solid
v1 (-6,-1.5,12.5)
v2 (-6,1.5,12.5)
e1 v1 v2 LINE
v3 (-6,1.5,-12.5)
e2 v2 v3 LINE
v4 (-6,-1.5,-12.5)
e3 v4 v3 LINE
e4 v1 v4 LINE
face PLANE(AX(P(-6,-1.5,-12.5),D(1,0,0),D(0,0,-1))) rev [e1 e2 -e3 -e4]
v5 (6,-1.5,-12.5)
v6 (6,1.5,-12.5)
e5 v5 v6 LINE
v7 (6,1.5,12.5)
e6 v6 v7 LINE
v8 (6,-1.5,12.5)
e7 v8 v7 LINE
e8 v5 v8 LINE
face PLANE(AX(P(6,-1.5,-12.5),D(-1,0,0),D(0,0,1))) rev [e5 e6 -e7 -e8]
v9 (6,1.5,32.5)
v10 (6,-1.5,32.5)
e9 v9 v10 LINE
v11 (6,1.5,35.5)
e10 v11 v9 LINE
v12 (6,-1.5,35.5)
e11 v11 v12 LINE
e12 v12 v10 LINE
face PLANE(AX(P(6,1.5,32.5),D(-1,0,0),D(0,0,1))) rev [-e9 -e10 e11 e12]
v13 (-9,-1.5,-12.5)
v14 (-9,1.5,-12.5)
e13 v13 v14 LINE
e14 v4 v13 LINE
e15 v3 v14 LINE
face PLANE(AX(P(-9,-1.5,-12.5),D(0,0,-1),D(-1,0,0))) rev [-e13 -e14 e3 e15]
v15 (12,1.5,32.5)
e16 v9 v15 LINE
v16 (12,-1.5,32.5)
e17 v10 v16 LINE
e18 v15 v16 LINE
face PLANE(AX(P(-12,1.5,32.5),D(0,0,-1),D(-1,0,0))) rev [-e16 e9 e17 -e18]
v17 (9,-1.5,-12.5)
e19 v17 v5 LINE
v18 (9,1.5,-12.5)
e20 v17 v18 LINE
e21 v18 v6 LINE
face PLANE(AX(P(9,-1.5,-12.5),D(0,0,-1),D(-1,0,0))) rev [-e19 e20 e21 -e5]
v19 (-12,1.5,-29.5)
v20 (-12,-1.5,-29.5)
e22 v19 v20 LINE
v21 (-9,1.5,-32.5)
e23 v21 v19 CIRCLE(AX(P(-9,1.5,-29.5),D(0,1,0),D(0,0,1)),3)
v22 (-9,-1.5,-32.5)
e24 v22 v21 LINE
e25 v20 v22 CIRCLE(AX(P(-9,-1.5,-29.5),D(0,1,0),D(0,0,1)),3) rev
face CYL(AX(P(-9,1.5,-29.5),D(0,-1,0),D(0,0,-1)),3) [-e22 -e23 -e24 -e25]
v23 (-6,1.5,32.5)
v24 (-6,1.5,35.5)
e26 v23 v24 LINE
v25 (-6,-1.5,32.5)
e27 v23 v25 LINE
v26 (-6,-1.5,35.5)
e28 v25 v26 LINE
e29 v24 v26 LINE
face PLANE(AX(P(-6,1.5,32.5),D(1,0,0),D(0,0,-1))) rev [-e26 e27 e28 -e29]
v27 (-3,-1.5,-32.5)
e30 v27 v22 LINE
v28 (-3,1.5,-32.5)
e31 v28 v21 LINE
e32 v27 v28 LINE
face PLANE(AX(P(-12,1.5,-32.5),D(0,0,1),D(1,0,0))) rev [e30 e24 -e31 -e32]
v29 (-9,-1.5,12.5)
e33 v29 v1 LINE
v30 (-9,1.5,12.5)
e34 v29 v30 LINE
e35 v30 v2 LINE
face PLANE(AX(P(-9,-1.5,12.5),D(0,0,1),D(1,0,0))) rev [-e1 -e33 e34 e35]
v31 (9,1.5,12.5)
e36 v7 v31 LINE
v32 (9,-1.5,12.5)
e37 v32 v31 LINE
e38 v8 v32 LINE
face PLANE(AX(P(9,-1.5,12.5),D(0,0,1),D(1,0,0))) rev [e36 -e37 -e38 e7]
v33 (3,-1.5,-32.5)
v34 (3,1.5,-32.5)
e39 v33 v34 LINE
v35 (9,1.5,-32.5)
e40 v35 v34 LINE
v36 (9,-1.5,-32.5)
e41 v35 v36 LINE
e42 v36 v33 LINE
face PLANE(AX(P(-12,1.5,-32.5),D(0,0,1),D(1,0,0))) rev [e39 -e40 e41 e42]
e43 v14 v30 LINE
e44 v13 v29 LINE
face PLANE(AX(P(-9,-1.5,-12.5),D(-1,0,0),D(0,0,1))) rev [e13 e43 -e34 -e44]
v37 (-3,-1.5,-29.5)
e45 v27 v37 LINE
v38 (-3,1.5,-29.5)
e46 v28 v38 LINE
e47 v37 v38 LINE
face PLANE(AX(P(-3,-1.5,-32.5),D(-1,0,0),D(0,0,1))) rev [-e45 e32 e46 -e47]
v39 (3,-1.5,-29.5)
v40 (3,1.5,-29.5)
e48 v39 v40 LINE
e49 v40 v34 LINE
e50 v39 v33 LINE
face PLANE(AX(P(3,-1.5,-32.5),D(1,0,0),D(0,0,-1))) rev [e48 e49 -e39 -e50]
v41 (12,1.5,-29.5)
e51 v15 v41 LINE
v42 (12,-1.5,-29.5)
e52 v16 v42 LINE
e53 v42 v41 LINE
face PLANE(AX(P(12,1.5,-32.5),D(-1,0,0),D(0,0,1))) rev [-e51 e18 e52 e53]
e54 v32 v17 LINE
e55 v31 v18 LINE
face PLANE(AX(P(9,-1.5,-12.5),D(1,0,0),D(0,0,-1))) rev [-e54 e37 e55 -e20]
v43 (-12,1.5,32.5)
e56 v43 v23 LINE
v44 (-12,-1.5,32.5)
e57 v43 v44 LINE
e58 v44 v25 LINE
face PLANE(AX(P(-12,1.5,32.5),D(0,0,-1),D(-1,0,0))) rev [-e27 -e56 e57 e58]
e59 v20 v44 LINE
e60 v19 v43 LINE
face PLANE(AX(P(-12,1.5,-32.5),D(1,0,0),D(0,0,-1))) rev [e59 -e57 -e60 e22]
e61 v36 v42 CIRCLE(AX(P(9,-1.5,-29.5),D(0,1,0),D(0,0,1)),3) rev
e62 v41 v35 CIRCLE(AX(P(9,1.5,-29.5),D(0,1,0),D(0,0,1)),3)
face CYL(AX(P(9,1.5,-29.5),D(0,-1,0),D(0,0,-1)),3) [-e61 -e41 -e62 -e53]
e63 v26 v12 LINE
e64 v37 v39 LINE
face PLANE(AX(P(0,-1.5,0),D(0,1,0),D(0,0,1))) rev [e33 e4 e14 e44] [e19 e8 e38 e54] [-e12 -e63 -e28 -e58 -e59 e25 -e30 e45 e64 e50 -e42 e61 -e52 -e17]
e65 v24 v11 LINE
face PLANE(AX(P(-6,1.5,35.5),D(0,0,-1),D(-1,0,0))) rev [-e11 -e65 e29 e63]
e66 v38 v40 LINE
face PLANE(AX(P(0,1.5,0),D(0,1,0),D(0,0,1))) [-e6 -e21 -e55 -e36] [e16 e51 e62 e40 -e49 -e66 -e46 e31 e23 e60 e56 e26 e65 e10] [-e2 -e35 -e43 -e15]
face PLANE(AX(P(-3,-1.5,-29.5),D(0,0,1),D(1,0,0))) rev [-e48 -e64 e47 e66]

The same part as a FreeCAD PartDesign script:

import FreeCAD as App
import Part
import Sketcher

V = App.Vector


def edges_at(feature, points):
    """Names of the edges that pass closest to the given points."""
    edges = feature.Shape.Edges
    near = lambda p: min(range(len(edges)), key=lambda i: edges[i].distToShape(Part.Vertex(*p))[0])
    return sorted({f"Edge{near(p) + 1}" for p in points})

doc = App.newDocument("Part")
body = doc.addObject("PartDesign::Body", "Body")

# Sketch on XZ plane
sketch1 = body.newObject("Sketcher::SketchObject", "Sketch")
sketch1.AttachmentSupport = (doc.getObject("XZ_Plane"), [""])
sketch1.MapMode = "FlatFace"
sketch1.addGeometry([
    Part.LineSegment(V(-12, -32, 0), V(-12, 32, 0)),
    Part.LineSegment(V(-12, 32, 0), V(12, 32, 0)),
    Part.LineSegment(V(12, 32, 0), V(12, -32, 0)),
    Part.LineSegment(V(12, -32, 0), V(-12, -32, 0)),
], False)
sketch1.addConstraint([
    Sketcher.Constraint("Coincident", 0, 2, 1, 1),
    Sketcher.Constraint("Coincident", 1, 2, 2, 1),
    Sketcher.Constraint("Coincident", 2, 2, 3, 1),
    Sketcher.Constraint("Coincident", 3, 2, 0, 1),
    Sketcher.Constraint("Vertical", 0),
    Sketcher.Constraint("Horizontal", 1),
    Sketcher.Constraint("Vertical", 2),
    Sketcher.Constraint("Horizontal", 3),
    Sketcher.Constraint("Symmetric", 0, 2, 2, 2, -1, 1),
    Sketcher.Constraint("DistanceX", 1, 1, 1, 2, 24.0),
    Sketcher.Constraint("DistanceY", 0, 1, 0, 2, 65.0),
])
pad1 = body.newObject("PartDesign::Pad", "Pad")
pad1.Profile = sketch1
pad1.Length = 3
pad1.Midplane = True

# Sketch on XZ plane
sketch2 = body.newObject("Sketcher::SketchObject", "Sketch001")
sketch2.AttachmentSupport = (doc.getObject("XZ_Plane"), [""])
sketch2.MapMode = "FlatFace"
sketch2.addGeometry([
    Part.LineSegment(V(-6, 32.5, 0), V(-6, 35.5, 0)),
    Part.LineSegment(V(-6, 35.5, 0), V(6, 35.5, 0)),
    Part.LineSegment(V(6, 35.5, 0), V(6, 32.5, 0)),
    Part.LineSegment(V(6, 32.5, 0), V(-6, 32.5, 0)),
], False)
sketch2.addConstraint([
    Sketcher.Constraint("Coincident", 0, 2, 1, 1),
    Sketcher.Constraint("Coincident", 1, 2, 2, 1),
    Sketcher.Constraint("Coincident", 2, 2, 3, 1),
    Sketcher.Constraint("Coincident", 3, 2, 0, 1),
    Sketcher.Constraint("Vertical", 0),
    Sketcher.Constraint("Horizontal", 1),
    Sketcher.Constraint("Vertical", 2),
    Sketcher.Constraint("Horizontal", 3),
    Sketcher.Constraint("DistanceX", 1, 1, 1, 2, 12.0),
    Sketcher.Constraint("DistanceY", 0, 1, 0, 2, 3.0),
    Sketcher.Constraint("DistanceX", 0, 2, -1, 1, 6.0),
    Sketcher.Constraint("DistanceY", -1, 1, 0, 2, 35.5),
])
pad2 = body.newObject("PartDesign::Pad", "Pad001")
pad2.Profile = sketch2
pad2.Length = 3
pad2.Midplane = True

# Sketch on XZ plane
sketch3 = body.newObject("Sketcher::SketchObject", "Sketch002")
sketch3.AttachmentSupport = (doc.getObject("XZ_Plane"), [""])
sketch3.MapMode = "FlatFace"
sketch3.addGeometry([
    Part.LineSegment(V(-9, -12.5, 0), V(-9, 12.5, 0)),  # 0
    Part.LineSegment(V(-9, 12.5, 0), V(-6, 12.5, 0)),  # 1
    Part.LineSegment(V(-6, 12.5, 0), V(-6, -12.5, 0)),  # 2
    Part.LineSegment(V(-6, -12.5, 0), V(-9, -12.5, 0)),  # 3
    Part.LineSegment(V(6, -12.5, 0), V(6, 12.5, 0)),  # 4
    Part.LineSegment(V(6, 12.5, 0), V(9, 12.5, 0)),  # 5
    Part.LineSegment(V(9, 12.5, 0), V(9, -12.5, 0)),  # 6
    Part.LineSegment(V(9, -12.5, 0), V(6, -12.5, 0)),  # 7
], False)
sketch3.addConstraint([
    Sketcher.Constraint("Coincident", 0, 2, 1, 1),
    Sketcher.Constraint("Coincident", 1, 2, 2, 1),
    Sketcher.Constraint("Coincident", 2, 2, 3, 1),
    Sketcher.Constraint("Coincident", 3, 2, 0, 1),
    Sketcher.Constraint("Coincident", 4, 2, 5, 1),
    Sketcher.Constraint("Coincident", 5, 2, 6, 1),
    Sketcher.Constraint("Coincident", 6, 2, 7, 1),
    Sketcher.Constraint("Coincident", 7, 2, 4, 1),
    Sketcher.Constraint("Vertical", 0),
    Sketcher.Constraint("Horizontal", 1),
    Sketcher.Constraint("Vertical", 2),
    Sketcher.Constraint("Horizontal", 3),
    Sketcher.Constraint("Vertical", 4),
    Sketcher.Constraint("Horizontal", 5),
    Sketcher.Constraint("Vertical", 6),
    Sketcher.Constraint("Horizontal", 7),
    Sketcher.Constraint("Symmetric", 2, 2, 4, 2, -1, 1),
    Sketcher.Constraint("Symmetric", 0, 2, 6, 2, -1, 1),
    Sketcher.Constraint("Horizontal", 1, 2, 4, 2),
    Sketcher.Constraint("DistanceX", 1, 1, 1, 2, 3.0),
    Sketcher.Constraint("DistanceY", 0, 1, 0, 2, 25.0),
    Sketcher.Constraint("DistanceX", 0, 2, -1, 1, 9.0),
])
pocket1 = body.newObject("PartDesign::Pocket", "Pocket")
pocket1.Profile = sketch3
pocket1.Type = "ThroughAll"
pocket1.Midplane = True
doc.recompute()

fillet = body.newObject("PartDesign::Fillet", "Fillet")
fillet.Base = (pocket1, edges_at(pocket1, [(-12, 0, -32.5), (12, 0, -32.5)]))
fillet.Radius = 3

# Sketch on XZ plane
sketch4 = body.newObject("Sketcher::SketchObject", "Sketch003")
sketch4.AttachmentSupport = (doc.getObject("XZ_Plane"), [""])
sketch4.MapMode = "FlatFace"
sketch4.addGeometry([
    Part.LineSegment(V(-3, -32.5, 0), V(-3, -29.5, 0)),
    Part.LineSegment(V(-3, -29.5, 0), V(3, -29.5, 0)),
    Part.LineSegment(V(3, -29.5, 0), V(3, -32.5, 0)),
    Part.LineSegment(V(3, -32.5, 0), V(-3, -32.5, 0)),
], False)
sketch4.addConstraint([
    Sketcher.Constraint("Coincident", 0, 2, 1, 1),
    Sketcher.Constraint("Coincident", 1, 2, 2, 1),
    Sketcher.Constraint("Coincident", 2, 2, 3, 1),
    Sketcher.Constraint("Coincident", 3, 2, 0, 1),
    Sketcher.Constraint("Vertical", 0),
    Sketcher.Constraint("Horizontal", 1),
    Sketcher.Constraint("Vertical", 2),
    Sketcher.Constraint("Horizontal", 3),
    Sketcher.Constraint("DistanceX", 1, 1, 1, 2, 6.0),
    Sketcher.Constraint("DistanceY", 0, 1, 0, 2, 3.0),
    Sketcher.Constraint("DistanceX", 0, 2, -1, 1, 3.0),
    Sketcher.Constraint("DistanceY", 0, 2, -1, 1, 29.5),
])
pocket2 = body.newObject("PartDesign::Pocket", "Pocket001")
pocket2.Profile = sketch4
pocket2.Type = "ThroughAll"
pocket2.Midplane = True

doc.recompute()
